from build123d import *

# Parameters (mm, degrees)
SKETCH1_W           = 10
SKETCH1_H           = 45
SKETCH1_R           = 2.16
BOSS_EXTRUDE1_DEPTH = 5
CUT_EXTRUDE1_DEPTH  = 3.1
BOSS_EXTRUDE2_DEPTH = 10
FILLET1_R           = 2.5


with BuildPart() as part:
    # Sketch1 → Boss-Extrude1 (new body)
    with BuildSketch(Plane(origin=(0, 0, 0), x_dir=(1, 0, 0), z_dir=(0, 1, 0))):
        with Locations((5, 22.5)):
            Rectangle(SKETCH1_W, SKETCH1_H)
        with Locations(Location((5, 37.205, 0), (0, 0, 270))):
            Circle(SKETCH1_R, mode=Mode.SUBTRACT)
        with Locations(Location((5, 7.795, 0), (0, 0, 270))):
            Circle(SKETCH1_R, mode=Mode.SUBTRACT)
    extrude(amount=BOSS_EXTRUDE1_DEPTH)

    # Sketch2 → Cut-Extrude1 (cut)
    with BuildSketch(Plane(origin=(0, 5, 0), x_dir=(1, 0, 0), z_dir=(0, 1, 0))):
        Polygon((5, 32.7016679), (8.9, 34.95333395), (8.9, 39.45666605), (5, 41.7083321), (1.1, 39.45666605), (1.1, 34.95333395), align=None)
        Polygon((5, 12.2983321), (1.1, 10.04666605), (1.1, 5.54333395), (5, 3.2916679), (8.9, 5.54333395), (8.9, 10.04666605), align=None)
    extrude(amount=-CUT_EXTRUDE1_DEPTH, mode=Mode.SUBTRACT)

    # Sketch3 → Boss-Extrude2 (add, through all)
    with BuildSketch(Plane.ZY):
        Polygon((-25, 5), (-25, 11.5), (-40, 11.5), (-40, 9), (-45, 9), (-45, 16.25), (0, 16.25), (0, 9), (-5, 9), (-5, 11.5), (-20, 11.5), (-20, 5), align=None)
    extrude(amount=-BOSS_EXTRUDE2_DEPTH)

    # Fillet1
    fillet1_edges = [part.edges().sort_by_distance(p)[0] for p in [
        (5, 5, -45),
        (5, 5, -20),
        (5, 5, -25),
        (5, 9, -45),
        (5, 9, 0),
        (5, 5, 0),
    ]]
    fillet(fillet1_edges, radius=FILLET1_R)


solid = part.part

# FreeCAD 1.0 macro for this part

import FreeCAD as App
import Part
import Sketcher
from FreeCAD import Vector
Q = App.Units.Quantity


def edges_at(feature, points):
    """Names of the edges that pass closest to the given points."""
    edges = feature.Shape.Edges
    near = lambda p: min(range(len(edges)), key=lambda i: edges[i].distToShape(Part.Vertex(*p))[0])
    return sorted({f"Edge{near(p) + 1}" for p in points})

doc = App.newDocument("Part")
params = doc.addObject("Spreadsheet::Sheet", "Params")
for row, (alias, value) in enumerate([
    ("sketch1_diameter", "4.32 mm"),
    ("sketch1_width", "10 mm"),
    ("sketch1_height", "45 mm"),
    ("pad1_length", "5 mm"),
    ("pocket1_length", "3.1 mm"),
    ("sketch3_height", "5 mm"),
    ("sketch3_height2", "15 mm"),
    ("sketch3_width", "6.5 mm"),
    ("sketch3_width2", "2.5 mm"),
    ("sketch3_width3", "7.25 mm"),
    ("pad2_length", "10 mm"),
    ("fillet_radius", "2.5 mm"),
], start=1):
    params.set(f"A{row}", alias)
    params.set(f"B{row}", "=" + value)
    params.setAlias(f"B{row}", alias)

body = doc.addObject("PartDesign::Body", "Body")

# Sketch on XZ plane
sketch1 = body.newObject("Sketcher::SketchObject", "Sketch")
sketch1.AttachmentSupport = (doc.getObject("XZ_Plane"), [""])
sketch1.MapMode = "FlatFace"
sketch1.addGeometry([
    Part.LineSegment(Vector(0, -45, 0), Vector(0, 0, 0)),  # 0
    Part.LineSegment(Vector(0, 0, 0), Vector(10, 0, 0)),  # 1
    Part.LineSegment(Vector(10, 0, 0), Vector(10, -45, 0)),  # 2
    Part.LineSegment(Vector(10, -45, 0), Vector(0, -45, 0)),  # 3
    Part.Circle(Vector(5, -7.8, 0), Vector(0, 0, 1), 2.2),  # 4
    Part.Circle(Vector(5, -37.2, 0), Vector(0, 0, 1), 2.2),  # 5
], False)
sketch1.addConstraint([
    Sketcher.Constraint("Coincident", 0, 2, 1, 1),
    Sketcher.Constraint("Coincident", 1, 2, 2, 1),
    Sketcher.Constraint("Coincident", 2, 2, 3, 1),
    Sketcher.Constraint("Coincident", 3, 2, 0, 1),
    Sketcher.Constraint("Vertical", 0),
    Sketcher.Constraint("Horizontal", 1),
    Sketcher.Constraint("Vertical", 2),
    Sketcher.Constraint("Horizontal", 3),
    Sketcher.Constraint("Coincident", 0, 2, -1, 1),
    Sketcher.Constraint("Equal", 4, 5),
    Sketcher.Constraint("Vertical", 4, 3, 5, 3),
    Sketcher.Constraint("Diameter", 4, Q("4.32 mm")),
    Sketcher.Constraint("DistanceX", 1, 1, 1, 2, Q("10 mm")),
    Sketcher.Constraint("DistanceY", 0, 1, 0, 2, Q("45 mm")),
    Sketcher.Constraint("DistanceX", -1, 1, 4, 3, Q("5 mm")),
    Sketcher.Constraint("DistanceY", 5, 3, 4, 3, Q("29.41 mm")),
    Sketcher.Constraint("DistanceY", 4, 3, -1, 1, Q("7.795 mm")),
])
sketch1.setExpression("Constraints[11]", "Params.sketch1_diameter")
sketch1.setExpression("Constraints[12]", "Params.sketch1_width")
sketch1.setExpression("Constraints[13]", "Params.sketch1_height")
pad1 = body.newObject("PartDesign::Pad", "Pad")
pad1.Profile = sketch1
pad1.setExpression("Length", "Params.pad1_length")
pad1.Reversed = True

# Sketch on XZ plane
sketch2 = body.newObject("Sketcher::SketchObject", "Sketch001")
sketch2.AttachmentSupport = (doc.getObject("XZ_Plane"), [""])
sketch2.MapMode = "FlatFace"
sketch2.AttachmentOffset = App.Placement(Vector(0, 0, -5), App.Rotation())
sketch2.addGeometry([
    Part.LineSegment(Vector(5, -32.7, 0), Vector(8.9, -35, 0)),  # 0
    Part.LineSegment(Vector(8.9, -35, 0), Vector(8.9, -39.5, 0)),  # 1
    Part.LineSegment(Vector(8.9, -39.5, 0), Vector(5, -41.7, 0)),  # 2
    Part.LineSegment(Vector(5, -41.7, 0), Vector(1.1, -39.5, 0)),  # 3
    Part.LineSegment(Vector(1.1, -39.5, 0), Vector(1.1, -35, 0)),  # 4
    Part.LineSegment(Vector(1.1, -35, 0), Vector(5, -32.7, 0)),  # 5
    Part.LineSegment(Vector(5, -12.3, 0), Vector(1.1, -10, 0)),  # 6
    Part.LineSegment(Vector(1.1, -10, 0), Vector(1.1, -5.5, 0)),  # 7
    Part.LineSegment(Vector(1.1, -5.5, 0), Vector(5, -3.3, 0)),  # 8
    Part.LineSegment(Vector(5, -3.3, 0), Vector(8.9, -5.5, 0)),  # 9
    Part.LineSegment(Vector(8.9, -5.5, 0), Vector(8.9, -10, 0)),  # 10
    Part.LineSegment(Vector(8.9, -10, 0), Vector(5, -12.3, 0)),  # 11
], False)
sketch2.addConstraint([
    Sketcher.Constraint("Coincident", 0, 2, 1, 1),
    Sketcher.Constraint("Coincident", 1, 2, 2, 1),
    Sketcher.Constraint("Coincident", 2, 2, 3, 1),
    Sketcher.Constraint("Coincident", 3, 2, 4, 1),
    Sketcher.Constraint("Coincident", 4, 2, 5, 1),
    Sketcher.Constraint("Coincident", 5, 2, 0, 1),
    Sketcher.Constraint("Coincident", 6, 2, 7, 1),
    Sketcher.Constraint("Coincident", 7, 2, 8, 1),
    Sketcher.Constraint("Coincident", 8, 2, 9, 1),
    Sketcher.Constraint("Coincident", 9, 2, 10, 1),
    Sketcher.Constraint("Coincident", 10, 2, 11, 1),
    Sketcher.Constraint("Coincident", 11, 2, 6, 1),
    Sketcher.Constraint("Vertical", 1),
    Sketcher.Constraint("Vertical", 4),
    Sketcher.Constraint("Vertical", 7),
    Sketcher.Constraint("Vertical", 10),
    Sketcher.Constraint("Parallel", 0, 3),
    Sketcher.Constraint("Parallel", 2, 5),
    Sketcher.Constraint("Parallel", 3, 6),
    Sketcher.Constraint("Parallel", 5, 8),
    Sketcher.Constraint("Parallel", 6, 9),
    Sketcher.Constraint("Parallel", 8, 11),
    Sketcher.Constraint("Horizontal", 1, 2, 3, 2),
    Sketcher.Constraint("Horizontal", 0, 2, 4, 2),
    Sketcher.Constraint("Horizontal", 7, 2, 9, 2),
    Sketcher.Constraint("Horizontal", 6, 2, 10, 2),
    Sketcher.Constraint("Vertical", 2, 2, 5, 2),
    Sketcher.Constraint("Vertical", 4, 2, 6, 2),
    Sketcher.Constraint("Vertical", 5, 2, 8, 2),
    Sketcher.Constraint("Equal", 4, 7),
    Sketcher.Constraint("Angle", 0, Q("-30 deg")),
    Sketcher.Constraint("DistanceX", -1, 1, 2, 2, Q("5 mm")),
    Sketcher.Constraint("DistanceX", -1, 1, 0, 2, Q("8.9 mm")),
    Sketcher.Constraint("DistanceY", 3, 2, 6, 2, Q("29.41 mm")),
    Sketcher.Constraint("DistanceY", 2, 2, 0, 2, Q("6.754998 mm")),
    Sketcher.Constraint("DistanceY", 0, 2, -1, 1, Q("34.953334 mm")),
])
pocket1 = body.newObject("PartDesign::Pocket", "Pocket")
pocket1.Profile = sketch2
pocket1.setExpression("Length", "Params.pocket1_length")
pocket1.Reversed = True

# Sketch on YZ plane
sketch3 = body.newObject("Sketcher::SketchObject", "Sketch002")
sketch3.AttachmentSupport = (doc.getObject("YZ_Plane"), [""])
sketch3.MapMode = "FlatFace"
sketch3.addGeometry([
    Part.LineSegment(Vector(11.5, -25, 0), Vector(5, -25, 0)),  # 0
    Part.LineSegment(Vector(5, -25, 0), Vector(5, -20, 0)),  # 1
    Part.LineSegment(Vector(5, -20, 0), Vector(11.5, -20, 0)),  # 2
    Part.LineSegment(Vector(11.5, -20, 0), Vector(11.5, -5, 0)),  # 3
    Part.LineSegment(Vector(11.5, -5, 0), Vector(9, -5, 0)),  # 4
    Part.LineSegment(Vector(9, -5, 0), Vector(9, 0, 0)),  # 5
    Part.LineSegment(Vector(9, 0, 0), Vector(16.2, 0, 0)),  # 6
    Part.LineSegment(Vector(16.2, 0, 0), Vector(16.2, -45, 0)),  # 7
    Part.LineSegment(Vector(16.2, -45, 0), Vector(9, -45, 0)),  # 8
    Part.LineSegment(Vector(9, -45, 0), Vector(9, -40, 0)),  # 9
    Part.LineSegment(Vector(9, -40, 0), Vector(11.5, -40, 0)),  # 10
    Part.LineSegment(Vector(11.5, -40, 0), Vector(11.5, -25, 0)),  # 11
], False)
sketch3.addConstraint([
    Sketcher.Constraint("Coincident", 0, 2, 1, 1),
    Sketcher.Constraint("Coincident", 1, 2, 2, 1),
    Sketcher.Constraint("Coincident", 2, 2, 3, 1),
    Sketcher.Constraint("Coincident", 3, 2, 4, 1),
    Sketcher.Constraint("Coincident", 4, 2, 5, 1),
    Sketcher.Constraint("Coincident", 5, 2, 6, 1),
    Sketcher.Constraint("Coincident", 6, 2, 7, 1),
    Sketcher.Constraint("Coincident", 7, 2, 8, 1),
    Sketcher.Constraint("Coincident", 8, 2, 9, 1),
    Sketcher.Constraint("Coincident", 9, 2, 10, 1),
    Sketcher.Constraint("Coincident", 10, 2, 11, 1),
    Sketcher.Constraint("Coincident", 11, 2, 0, 1),
    Sketcher.Constraint("Horizontal", 0),
    Sketcher.Constraint("Vertical", 1),
    Sketcher.Constraint("Horizontal", 2),
    Sketcher.Constraint("Vertical", 3),
    Sketcher.Constraint("Horizontal", 4),
    Sketcher.Constraint("Vertical", 5),
    Sketcher.Constraint("Horizontal", 6),
    Sketcher.Constraint("Vertical", 7),
    Sketcher.Constraint("Horizontal", 8),
    Sketcher.Constraint("Vertical", 9),
    Sketcher.Constraint("Horizontal", 10),
    Sketcher.Constraint("Vertical", 11),
    Sketcher.Constraint("PointOnObject", 5, 2, -1),
    Sketcher.Constraint("Vertical", 5, 2, 8, 2),
    Sketcher.Constraint("Vertical", 3, 2, 10, 2),
    Sketcher.Constraint("Equal", 1, 5),
    Sketcher.Constraint("Equal", 5, 9),
    Sketcher.Constraint("Equal", 3, 11),
    Sketcher.Constraint("DistanceY", 1, 1, 1, 2, Q("5 mm")),
    Sketcher.Constraint("DistanceY", 3, 1, 3, 2, Q("15 mm")),
    Sketcher.Constraint("DistanceX", 0, 2, 0, 1, Q("6.5 mm")),
    Sketcher.Constraint("DistanceX", 4, 2, 4, 1, Q("2.5 mm")),
    Sketcher.Constraint("DistanceX", -1, 1, 0, 2, Q("5 mm")),
    Sketcher.Constraint("DistanceX", 6, 1, 6, 2, Q("7.25 mm")),
])
sketch3.setExpression("Constraints[30]", "Params.sketch3_height")
sketch3.setExpression("Constraints[31]", "Params.sketch3_height2")
sketch3.setExpression("Constraints[32]", "Params.sketch3_width")
sketch3.setExpression("Constraints[33]", "Params.sketch3_width2")
sketch3.setExpression("Constraints[35]", "Params.sketch3_width3")
pad2 = body.newObject("PartDesign::Pad", "Pad001")
pad2.Profile = sketch3
pad2.setExpression("Length", "Params.pad2_length")
doc.recompute()

fillet = body.newObject("PartDesign::Fillet", "Fillet")
fillet.Base = (pad2, edges_at(pad2, [
    (5, 5, -45),
    (5, 5, -20),
    (5, 5, -25),
    (5, 9, -45),
    (5, 9, 0),
    (5, 5, 0),
]))
fillet.setExpression("Radius", "Params.fillet_radius")

doc.recompute()
